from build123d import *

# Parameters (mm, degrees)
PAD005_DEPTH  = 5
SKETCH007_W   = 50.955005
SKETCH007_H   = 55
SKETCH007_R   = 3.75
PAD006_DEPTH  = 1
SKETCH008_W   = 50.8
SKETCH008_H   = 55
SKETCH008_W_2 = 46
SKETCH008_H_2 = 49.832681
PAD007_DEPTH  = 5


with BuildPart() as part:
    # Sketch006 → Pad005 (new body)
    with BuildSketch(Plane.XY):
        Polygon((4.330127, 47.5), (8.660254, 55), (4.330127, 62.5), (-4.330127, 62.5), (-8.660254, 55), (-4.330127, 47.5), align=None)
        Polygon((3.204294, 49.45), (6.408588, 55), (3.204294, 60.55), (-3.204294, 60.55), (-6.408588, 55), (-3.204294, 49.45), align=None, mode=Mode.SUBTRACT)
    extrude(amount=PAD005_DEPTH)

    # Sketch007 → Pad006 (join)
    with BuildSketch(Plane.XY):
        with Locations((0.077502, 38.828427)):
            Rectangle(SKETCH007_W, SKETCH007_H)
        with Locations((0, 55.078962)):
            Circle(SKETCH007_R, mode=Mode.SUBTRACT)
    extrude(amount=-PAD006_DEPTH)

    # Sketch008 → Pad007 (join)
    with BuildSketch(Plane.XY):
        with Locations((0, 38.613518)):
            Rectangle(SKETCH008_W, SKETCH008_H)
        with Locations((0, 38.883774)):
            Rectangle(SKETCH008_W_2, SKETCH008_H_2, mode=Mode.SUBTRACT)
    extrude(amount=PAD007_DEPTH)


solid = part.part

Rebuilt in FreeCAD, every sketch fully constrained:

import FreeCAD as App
import Part
import Sketcher

V = App.Vector
Q = App.Units.Quantity

doc = App.newDocument("Part")
params = doc.addObject("Spreadsheet::Sheet", "Params")
for row, (alias, value) in enumerate([
    ("pad1_length", "5 mm"),
    ("sketch2_diameter", "7.5 mm"),
    ("sketch2_height", "55 mm"),
    ("pad2_length", "1 mm"),
    ("sketch3_width", "46 mm"),
    ("sketch3_height", "55 mm"),
    ("sketch3_width2", "50.8 mm"),
    ("pad3_length", "5 mm"),
], start=1):
    params.set(f"A{row}", alias)
    params.set(f"B{row}", "=" + value)
    params.setAlias(f"B{row}", alias)

body = doc.addObject("PartDesign::Body", "Body")

sketch1 = doc.addObject("Sketcher::SketchObject", "Sketch")
body.addObject(sketch1)
sketch1.AttachmentSupport = (doc.XY_Plane, [""])
sketch1.MapMode = "FlatFace"
sketch1.addGeometry([
    Part.LineSegment(V(4.330127, 47.5, 0), V(8.660254, 55, 0)),
    Part.LineSegment(V(8.660254, 55, 0), V(4.330127, 62.5, 0)),
    Part.LineSegment(V(4.330127, 62.5, 0), V(-4.330127, 62.5, 0)),
    Part.LineSegment(V(-4.330127, 62.5, 0), V(-8.660254, 55, 0)),
    Part.LineSegment(V(-8.660254, 55, 0), V(-4.330127, 47.5, 0)),
    Part.LineSegment(V(-4.330127, 47.5, 0), V(4.330127, 47.5, 0)),
    Part.LineSegment(V(6.408588, 55, 0), V(3.204294, 49.45, 0)),
    Part.LineSegment(V(3.204294, 49.45, 0), V(-3.204294, 49.45, 0)),
    Part.LineSegment(V(-3.204294, 49.45, 0), V(-6.408588, 55, 0)),
    Part.LineSegment(V(-6.408588, 55, 0), V(-3.204294, 60.55, 0)),
    Part.LineSegment(V(-3.204294, 60.55, 0), V(3.204294, 60.55, 0)),
    Part.LineSegment(V(3.204294, 60.55, 0), V(6.408588, 55, 0)),
], False)
sketch1.addConstraint([
    Sketcher.Constraint("Coincident", 0, 2, 1, 1),
    Sketcher.Constraint("Coincident", 1, 2, 2, 1),
    Sketcher.Constraint("Coincident", 2, 2, 3, 1),
    Sketcher.Constraint("Coincident", 3, 2, 4, 1),
    Sketcher.Constraint("Coincident", 4, 2, 5, 1),
    Sketcher.Constraint("Coincident", 5, 2, 0, 1),
    Sketcher.Constraint("Coincident", 6, 2, 7, 1),
    Sketcher.Constraint("Coincident", 7, 2, 8, 1),
    Sketcher.Constraint("Coincident", 8, 2, 9, 1),
    Sketcher.Constraint("Coincident", 9, 2, 10, 1),
    Sketcher.Constraint("Coincident", 10, 2, 11, 1),
    Sketcher.Constraint("Coincident", 11, 2, 6, 1),
    Sketcher.Constraint("Horizontal", 2),
    Sketcher.Constraint("Horizontal", 5),
    Sketcher.Constraint("Horizontal", 7),
    Sketcher.Constraint("Horizontal", 10),
    Sketcher.Constraint("Symmetric", 0, 2, 3, 2, -2),
    Sketcher.Constraint("Symmetric", 8, 2, 11, 2, -2),
    Sketcher.Constraint("Parallel", 0, 3),
    Sketcher.Constraint("Parallel", 1, 4),
    Sketcher.Constraint("Parallel", 3, 6),
    Sketcher.Constraint("Parallel", 4, 8),
    Sketcher.Constraint("Parallel", 6, 9),
    Sketcher.Constraint("Parallel", 8, 11),
    Sketcher.Constraint("Horizontal", 3, 2, 8, 2),
    Sketcher.Constraint("Vertical", 2, 2, 4, 2),
    Sketcher.Constraint("Vertical", 1, 2, 5, 2),
    Sketcher.Constraint("Vertical", 7, 2, 9, 2),
    Sketcher.Constraint("Angle", 0, Q("60 deg")),
    Sketcher.Constraint("DistanceY", -1, 1, 0, 2, Q("55 mm")),
    Sketcher.Constraint("DistanceY", 4, 2, 2, 2, Q("15 mm")),
    Sketcher.Constraint("DistanceY", 7, 2, 9, 2, Q("11.1 mm")),
    Sketcher.Constraint("DistanceX", 2, 2, 2, 1, Q("8.660254 mm")),
    Sketcher.Constraint("DistanceX", 7, 2, 7, 1, Q("6.408588 mm")),
])
pad1 = doc.addObject("PartDesign::Pad", "Pad")
body.addObject(pad1)
pad1.Profile = sketch1
pad1.setExpression("Length", "Params.pad1_length")

sketch2 = doc.addObject("Sketcher::SketchObject", "Sketch001")
body.addObject(sketch2)
sketch2.AttachmentSupport = (doc.XY_Plane, [""])
sketch2.MapMode = "FlatFace"
sketch2.addGeometry([
    Part.LineSegment(V(-25.400001, 66.328427, 0), V(-25.400001, 11.328427, 0)),
    Part.LineSegment(V(-25.400001, 11.328427, 0), V(25.555004, 11.328427, 0)),
    Part.LineSegment(V(25.555004, 11.328427, 0), V(25.555004, 66.328427, 0)),
    Part.LineSegment(V(25.555004, 66.328427, 0), V(-25.400001, 66.328427, 0)),
    Part.Circle(V(0, 55.078962, 0), V(0, 0, 1), 3.75),
], False)
sketch2.addConstraint([
    Sketcher.Constraint("Coincident", 0, 2, 1, 1),
    Sketcher.Constraint("Coincident", 1, 2, 2, 1),
    Sketcher.Constraint("Coincident", 2, 2, 3, 1),
    Sketcher.Constraint("Coincident", 3, 2, 0, 1),
    Sketcher.Constraint("Vertical", 0),
    Sketcher.Constraint("Horizontal", 1),
    Sketcher.Constraint("Vertical", 2),
    Sketcher.Constraint("Horizontal", 3),
    Sketcher.Constraint("PointOnObject", 4, 3, -2),
    Sketcher.Constraint("Diameter", 4, Q("7.5 mm")),
    Sketcher.Constraint("DistanceY", 0, 2, 0, 1, Q("55 mm")),
    Sketcher.Constraint("DistanceX", 0, 2, -1, 1, Q("25.400001 mm")),
    Sketcher.Constraint("DistanceX", 1, 1, 1, 2, Q("50.955005 mm")),
    Sketcher.Constraint("DistanceY", -1, 1, 4, 3, Q("55.078962 mm")),
    Sketcher.Constraint("DistanceY", -1, 1, 0, 2, Q("11.328427 mm")),
])
sketch2.setExpression("Constraints[9]", "Params.sketch2_diameter")
sketch2.setExpression("Constraints[10]", "Params.sketch2_height")
pad2 = doc.addObject("PartDesign::Pad", "Pad001")
body.addObject(pad2)
pad2.Profile = sketch2
pad2.setExpression("Length", "Params.pad2_length")
pad2.Reversed = True

sketch3 = doc.addObject("Sketcher::SketchObject", "Sketch002")
body.addObject(sketch3)
sketch3.AttachmentSupport = (doc.XY_Plane, [""])
sketch3.MapMode = "FlatFace"
sketch3.addGeometry([
    Part.LineSegment(V(-25.4, 66.113518, 0), V(-25.4, 11.113518, 0)),
    Part.LineSegment(V(-25.4, 11.113518, 0), V(25.4, 11.113518, 0)),
    Part.LineSegment(V(25.4, 11.113518, 0), V(25.4, 66.113518, 0)),
    Part.LineSegment(V(25.4, 66.113518, 0), V(-25.4, 66.113518, 0)),
    Part.LineSegment(V(23, 13.967434, 0), V(-23, 13.967434, 0)),
    Part.LineSegment(V(-23, 13.967434, 0), V(-23, 63.800114, 0)),
    Part.LineSegment(V(-23, 63.800114, 0), V(23, 63.800114, 0)),
    Part.LineSegment(V(23, 63.800114, 0), V(23, 13.967434, 0)),
], False)
sketch3.addConstraint([
    Sketcher.Constraint("Coincident", 0, 2, 1, 1),
    Sketcher.Constraint("Coincident", 1, 2, 2, 1),
    Sketcher.Constraint("Coincident", 2, 2, 3, 1),
    Sketcher.Constraint("Coincident", 3, 2, 0, 1),
    Sketcher.Constraint("Coincident", 4, 2, 5, 1),
    Sketcher.Constraint("Coincident", 5, 2, 6, 1),
    Sketcher.Constraint("Coincident", 6, 2, 7, 1),
    Sketcher.Constraint("Coincident", 7, 2, 4, 1),
    Sketcher.Constraint("Vertical", 0),
    Sketcher.Constraint("Horizontal", 1),
    Sketcher.Constraint("Vertical", 2),
    Sketcher.Constraint("Horizontal", 3),
    Sketcher.Constraint("Horizontal", 4),
    Sketcher.Constraint("Vertical", 5),
    Sketcher.Constraint("Horizontal", 6),
    Sketcher.Constraint("Vertical", 7),
    Sketcher.Constraint("DistanceX", 4, 2, 4, 1, Q("46 mm")),
    Sketcher.Constraint("DistanceY", 0, 2, 0, 1, Q("55 mm")),
    Sketcher.Constraint("DistanceX", 1, 1, 1, 2, Q("50.8 mm")),
    Sketcher.Constraint("DistanceX", 4, 2, -1, 1, Q("23 mm")),
    Sketcher.Constraint("DistanceX", 0, 2, -1, 1, Q("25.4 mm")),
    Sketcher.Constraint("DistanceY", 5, 1, 5, 2, Q("49.832681 mm")),
    Sketcher.Constraint("DistanceY", -1, 1, 2, 2, Q("66.113518 mm")),
    Sketcher.Constraint("DistanceY", -1, 1, 4, 2, Q("13.967434 mm")),
])
sketch3.setExpression("Constraints[16]", "Params.sketch3_width")
sketch3.setExpression("Constraints[17]", "Params.sketch3_height")
sketch3.setExpression("Constraints[18]", "Params.sketch3_width2")
pad3 = doc.addObject("PartDesign::Pad", "Pad002")
body.addObject(pad3)
pad3.Profile = sketch3
pad3.setExpression("Length", "Params.pad3_length")

doc.recompute()
